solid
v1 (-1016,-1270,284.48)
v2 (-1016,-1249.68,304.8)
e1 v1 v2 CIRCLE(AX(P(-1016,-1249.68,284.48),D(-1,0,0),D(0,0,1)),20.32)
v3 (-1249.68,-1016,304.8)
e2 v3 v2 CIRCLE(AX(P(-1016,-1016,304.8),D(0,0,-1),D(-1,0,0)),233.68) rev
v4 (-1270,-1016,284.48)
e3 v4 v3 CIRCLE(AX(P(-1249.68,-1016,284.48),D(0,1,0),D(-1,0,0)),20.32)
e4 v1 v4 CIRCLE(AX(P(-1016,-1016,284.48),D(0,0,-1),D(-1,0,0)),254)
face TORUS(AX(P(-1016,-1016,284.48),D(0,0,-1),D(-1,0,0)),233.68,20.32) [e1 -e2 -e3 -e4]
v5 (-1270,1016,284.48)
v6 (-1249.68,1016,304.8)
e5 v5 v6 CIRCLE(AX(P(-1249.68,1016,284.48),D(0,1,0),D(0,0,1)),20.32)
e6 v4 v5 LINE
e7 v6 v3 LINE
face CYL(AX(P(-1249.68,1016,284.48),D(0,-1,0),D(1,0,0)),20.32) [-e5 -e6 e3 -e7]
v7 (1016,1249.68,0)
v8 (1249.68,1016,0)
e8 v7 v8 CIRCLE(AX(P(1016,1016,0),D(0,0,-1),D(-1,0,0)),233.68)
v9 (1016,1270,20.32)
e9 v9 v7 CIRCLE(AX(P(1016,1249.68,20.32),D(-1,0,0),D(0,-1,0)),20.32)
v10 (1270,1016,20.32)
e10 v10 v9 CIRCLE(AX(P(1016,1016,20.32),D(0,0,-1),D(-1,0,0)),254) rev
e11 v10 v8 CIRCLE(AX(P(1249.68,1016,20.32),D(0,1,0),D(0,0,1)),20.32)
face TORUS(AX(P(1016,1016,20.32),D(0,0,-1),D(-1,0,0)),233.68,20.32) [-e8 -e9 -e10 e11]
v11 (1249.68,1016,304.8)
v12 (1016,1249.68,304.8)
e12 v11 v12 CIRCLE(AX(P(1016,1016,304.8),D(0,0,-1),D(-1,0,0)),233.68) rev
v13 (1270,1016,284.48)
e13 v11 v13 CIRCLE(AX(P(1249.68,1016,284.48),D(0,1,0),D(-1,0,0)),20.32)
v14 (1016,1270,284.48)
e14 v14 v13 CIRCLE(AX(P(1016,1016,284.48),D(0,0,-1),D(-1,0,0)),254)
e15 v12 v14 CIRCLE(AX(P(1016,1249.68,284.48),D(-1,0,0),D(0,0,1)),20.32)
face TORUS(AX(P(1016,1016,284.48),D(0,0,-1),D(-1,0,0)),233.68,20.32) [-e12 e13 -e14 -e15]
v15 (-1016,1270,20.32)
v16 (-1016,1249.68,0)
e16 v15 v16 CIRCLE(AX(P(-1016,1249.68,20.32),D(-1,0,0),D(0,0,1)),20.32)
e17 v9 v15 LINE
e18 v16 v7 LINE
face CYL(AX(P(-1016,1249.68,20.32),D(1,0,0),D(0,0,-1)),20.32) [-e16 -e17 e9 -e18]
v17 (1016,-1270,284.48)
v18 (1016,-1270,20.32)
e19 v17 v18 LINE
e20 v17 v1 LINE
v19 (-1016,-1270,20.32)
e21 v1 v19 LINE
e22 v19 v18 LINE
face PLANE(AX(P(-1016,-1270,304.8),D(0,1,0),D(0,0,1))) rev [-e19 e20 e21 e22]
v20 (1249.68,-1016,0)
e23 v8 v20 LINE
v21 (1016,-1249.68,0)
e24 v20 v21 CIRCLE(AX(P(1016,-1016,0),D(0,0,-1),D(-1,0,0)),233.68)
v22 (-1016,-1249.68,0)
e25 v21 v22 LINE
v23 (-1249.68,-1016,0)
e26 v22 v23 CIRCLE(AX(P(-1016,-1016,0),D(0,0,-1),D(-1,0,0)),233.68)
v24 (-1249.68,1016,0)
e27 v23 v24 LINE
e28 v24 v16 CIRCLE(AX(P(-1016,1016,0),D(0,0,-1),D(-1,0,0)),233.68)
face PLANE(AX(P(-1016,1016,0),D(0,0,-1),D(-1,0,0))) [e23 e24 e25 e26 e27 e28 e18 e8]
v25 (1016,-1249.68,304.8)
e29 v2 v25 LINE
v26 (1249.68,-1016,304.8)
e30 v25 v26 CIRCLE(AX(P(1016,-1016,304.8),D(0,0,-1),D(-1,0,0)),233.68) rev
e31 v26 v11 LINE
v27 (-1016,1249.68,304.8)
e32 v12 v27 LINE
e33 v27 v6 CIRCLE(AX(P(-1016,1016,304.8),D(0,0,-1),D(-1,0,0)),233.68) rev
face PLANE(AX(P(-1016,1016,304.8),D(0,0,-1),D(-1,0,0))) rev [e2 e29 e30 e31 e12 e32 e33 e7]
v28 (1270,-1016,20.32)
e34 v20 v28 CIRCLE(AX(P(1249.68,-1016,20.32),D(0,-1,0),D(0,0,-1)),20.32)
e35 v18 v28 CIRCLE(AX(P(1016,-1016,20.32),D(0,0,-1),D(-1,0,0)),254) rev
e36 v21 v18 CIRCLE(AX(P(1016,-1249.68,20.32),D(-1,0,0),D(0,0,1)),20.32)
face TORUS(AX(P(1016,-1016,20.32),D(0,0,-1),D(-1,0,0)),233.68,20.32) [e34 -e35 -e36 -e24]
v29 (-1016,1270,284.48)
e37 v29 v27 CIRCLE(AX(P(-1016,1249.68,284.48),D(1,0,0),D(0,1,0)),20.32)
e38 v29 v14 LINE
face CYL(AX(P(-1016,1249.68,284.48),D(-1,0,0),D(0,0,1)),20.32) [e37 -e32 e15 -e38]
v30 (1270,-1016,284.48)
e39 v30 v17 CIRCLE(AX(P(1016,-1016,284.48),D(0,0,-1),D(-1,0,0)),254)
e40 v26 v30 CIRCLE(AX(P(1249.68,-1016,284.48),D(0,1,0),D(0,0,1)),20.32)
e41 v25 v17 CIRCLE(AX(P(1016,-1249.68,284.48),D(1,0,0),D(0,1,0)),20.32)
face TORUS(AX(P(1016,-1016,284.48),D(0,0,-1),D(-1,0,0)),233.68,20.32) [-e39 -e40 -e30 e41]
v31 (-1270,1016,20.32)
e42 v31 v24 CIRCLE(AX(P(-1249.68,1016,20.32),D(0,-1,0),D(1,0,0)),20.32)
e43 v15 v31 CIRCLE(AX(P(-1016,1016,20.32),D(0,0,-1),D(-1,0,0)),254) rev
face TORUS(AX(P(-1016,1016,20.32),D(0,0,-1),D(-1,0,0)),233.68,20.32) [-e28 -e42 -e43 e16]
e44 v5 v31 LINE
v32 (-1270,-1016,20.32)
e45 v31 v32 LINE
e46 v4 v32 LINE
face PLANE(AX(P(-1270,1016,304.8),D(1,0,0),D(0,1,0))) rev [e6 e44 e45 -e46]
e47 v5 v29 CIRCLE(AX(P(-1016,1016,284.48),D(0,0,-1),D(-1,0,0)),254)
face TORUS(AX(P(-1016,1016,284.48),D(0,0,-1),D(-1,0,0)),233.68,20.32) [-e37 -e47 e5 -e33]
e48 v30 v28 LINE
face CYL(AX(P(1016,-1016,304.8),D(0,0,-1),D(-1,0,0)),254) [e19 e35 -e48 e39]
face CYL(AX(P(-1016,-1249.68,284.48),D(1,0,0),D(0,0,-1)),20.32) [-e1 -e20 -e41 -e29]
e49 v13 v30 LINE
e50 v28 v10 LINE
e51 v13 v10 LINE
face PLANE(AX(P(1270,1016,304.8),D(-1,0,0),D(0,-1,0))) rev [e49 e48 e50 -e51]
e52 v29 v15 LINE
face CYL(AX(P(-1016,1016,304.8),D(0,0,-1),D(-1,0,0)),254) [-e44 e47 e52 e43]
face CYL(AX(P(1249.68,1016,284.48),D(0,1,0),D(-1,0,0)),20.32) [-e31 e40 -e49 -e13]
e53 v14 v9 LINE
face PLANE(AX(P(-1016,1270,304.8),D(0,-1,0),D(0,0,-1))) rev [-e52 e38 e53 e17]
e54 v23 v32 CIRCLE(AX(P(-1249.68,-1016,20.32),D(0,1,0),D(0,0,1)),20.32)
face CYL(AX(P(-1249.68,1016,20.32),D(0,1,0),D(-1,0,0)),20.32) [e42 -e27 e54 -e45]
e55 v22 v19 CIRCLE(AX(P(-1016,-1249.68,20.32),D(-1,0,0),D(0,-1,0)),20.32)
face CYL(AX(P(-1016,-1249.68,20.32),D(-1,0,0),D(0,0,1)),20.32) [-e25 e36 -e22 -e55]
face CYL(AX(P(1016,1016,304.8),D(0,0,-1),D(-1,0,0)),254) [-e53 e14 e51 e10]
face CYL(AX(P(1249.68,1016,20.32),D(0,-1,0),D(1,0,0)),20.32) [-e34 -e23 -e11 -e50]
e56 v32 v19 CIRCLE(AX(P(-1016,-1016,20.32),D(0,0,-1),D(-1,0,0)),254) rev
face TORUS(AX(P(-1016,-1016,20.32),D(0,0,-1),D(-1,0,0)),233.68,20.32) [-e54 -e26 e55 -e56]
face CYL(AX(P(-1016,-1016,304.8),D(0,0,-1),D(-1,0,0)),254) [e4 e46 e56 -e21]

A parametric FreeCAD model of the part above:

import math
import FreeCAD as App
import Part
import Sketcher

V = App.Vector
Q = App.Units.Quantity


def edges_at(feature, points):
    """Names of the edges that pass closest to the given points."""
    edges = feature.Shape.Edges
    near = lambda p: min(range(len(edges)), key=lambda i: edges[i].distToShape(Part.Vertex(*p))[0])
    return sorted({f"Edge{near(p) + 1}" for p in points})

doc = App.newDocument("Part")
body = doc.addObject("PartDesign::Body", "Body")

# Sketch on XY plane
sketch1 = body.newObject("Sketcher::SketchObject", "Sketch")
sketch1.AttachmentSupport = (doc.getObject("XY_Plane"), [""])
sketch1.MapMode = "FlatFace"
sketch1.addGeometry([
    Part.LineSegment(V(1016, 1270, 0), V(-1016, 1270, 0)),  # 0
    Part.ArcOfCircle(Part.Circle(V(-1016, 1016, 0), V(0, 0, 1), 254), math.radians(90), math.radians(180)),  # 1
    Part.LineSegment(V(-1270, 1016, 0), V(-1270, -1016, 0)),  # 2
    Part.ArcOfCircle(Part.Circle(V(-1016, -1016, 0), V(0, 0, 1), 254), math.radians(-180), math.radians(-90)),  # 3
    Part.LineSegment(V(-1016, -1270, 0), V(1016, -1270, 0)),  # 4
    Part.ArcOfCircle(Part.Circle(V(1016, -1016, 0), V(0, 0, 1), 254), math.radians(-90), math.radians(0)),  # 5
    Part.LineSegment(V(1270, -1016, 0), V(1270, 1016, 0)),  # 6
    Part.ArcOfCircle(Part.Circle(V(1016, 1016, 0), V(0, 0, 1), 254), math.radians(0), math.radians(90)),  # 7
], False)
sketch1.addConstraint([
    Sketcher.Constraint("Tangent", 0, 2, 1, 1),
    Sketcher.Constraint("Tangent", 1, 2, 2, 1),
    Sketcher.Constraint("Tangent", 2, 2, 3, 1),
    Sketcher.Constraint("Tangent", 3, 2, 4, 1),
    Sketcher.Constraint("Tangent", 4, 2, 5, 1),
    Sketcher.Constraint("Tangent", 5, 2, 6, 1),
    Sketcher.Constraint("Tangent", 6, 2, 7, 1),
    Sketcher.Constraint("Tangent", 7, 2, 0, 1),
    Sketcher.Constraint("Horizontal", 0),
    Sketcher.Constraint("Vertical", 2),
    Sketcher.Constraint("Horizontal", 4),
    Sketcher.Constraint("Vertical", 6),
    Sketcher.Constraint("Equal", 1, 3),
    Sketcher.Constraint("Equal", 3, 5),
    Sketcher.Constraint("Equal", 5, 7),
    Sketcher.Constraint("Symmetric", 1, 3, 5, 3, -1, 1),
    Sketcher.Constraint("Equal", 4, 2),
    Sketcher.Constraint("Radius", 1, Q("10 in")),
    Sketcher.Constraint("DistanceX", 0, 2, 0, 1, Q("80 in")),
])
pad1 = body.newObject("PartDesign::Pad", "Pad")
pad1.Profile = sketch1
pad1.Length = Q("12 in")
doc.recompute()

fillet = body.newObject("PartDesign::Fillet", "Fillet")
fillet.Base = (pad1, edges_at(pad1, [
    (-1195.605, -1195.605, 304.8),
    (0, -1270, 304.8),
    (1195.605, -1195.605, 304.8),
    (1270, 0, 304.8),
    (1195.605, 1195.605, 304.8),
    (0, 1270, 304.8),
    (-1195.605, 1195.605, 304.8),
    (-1270, 0, 304.8),
]))
fillet.Radius = Q("0.8 in")
doc.recompute()

fillet2 = body.newObject("PartDesign::Fillet", "Fillet001")
fillet2.Base = (fillet, edges_at(fillet, [
    (0, -1270, 0),
    (-1195.605, -1195.605, 0),
    (-1270, 0, 0),
    (-1195.605, 1195.605, 0),
    (0, 1270, 0),
    (1195.605, 1195.605, 0),
    (1270, 0, 0),
    (1195.605, -1195.605, 0),
]))
fillet2.Radius = Q("0.8 in")

doc.recompute()
